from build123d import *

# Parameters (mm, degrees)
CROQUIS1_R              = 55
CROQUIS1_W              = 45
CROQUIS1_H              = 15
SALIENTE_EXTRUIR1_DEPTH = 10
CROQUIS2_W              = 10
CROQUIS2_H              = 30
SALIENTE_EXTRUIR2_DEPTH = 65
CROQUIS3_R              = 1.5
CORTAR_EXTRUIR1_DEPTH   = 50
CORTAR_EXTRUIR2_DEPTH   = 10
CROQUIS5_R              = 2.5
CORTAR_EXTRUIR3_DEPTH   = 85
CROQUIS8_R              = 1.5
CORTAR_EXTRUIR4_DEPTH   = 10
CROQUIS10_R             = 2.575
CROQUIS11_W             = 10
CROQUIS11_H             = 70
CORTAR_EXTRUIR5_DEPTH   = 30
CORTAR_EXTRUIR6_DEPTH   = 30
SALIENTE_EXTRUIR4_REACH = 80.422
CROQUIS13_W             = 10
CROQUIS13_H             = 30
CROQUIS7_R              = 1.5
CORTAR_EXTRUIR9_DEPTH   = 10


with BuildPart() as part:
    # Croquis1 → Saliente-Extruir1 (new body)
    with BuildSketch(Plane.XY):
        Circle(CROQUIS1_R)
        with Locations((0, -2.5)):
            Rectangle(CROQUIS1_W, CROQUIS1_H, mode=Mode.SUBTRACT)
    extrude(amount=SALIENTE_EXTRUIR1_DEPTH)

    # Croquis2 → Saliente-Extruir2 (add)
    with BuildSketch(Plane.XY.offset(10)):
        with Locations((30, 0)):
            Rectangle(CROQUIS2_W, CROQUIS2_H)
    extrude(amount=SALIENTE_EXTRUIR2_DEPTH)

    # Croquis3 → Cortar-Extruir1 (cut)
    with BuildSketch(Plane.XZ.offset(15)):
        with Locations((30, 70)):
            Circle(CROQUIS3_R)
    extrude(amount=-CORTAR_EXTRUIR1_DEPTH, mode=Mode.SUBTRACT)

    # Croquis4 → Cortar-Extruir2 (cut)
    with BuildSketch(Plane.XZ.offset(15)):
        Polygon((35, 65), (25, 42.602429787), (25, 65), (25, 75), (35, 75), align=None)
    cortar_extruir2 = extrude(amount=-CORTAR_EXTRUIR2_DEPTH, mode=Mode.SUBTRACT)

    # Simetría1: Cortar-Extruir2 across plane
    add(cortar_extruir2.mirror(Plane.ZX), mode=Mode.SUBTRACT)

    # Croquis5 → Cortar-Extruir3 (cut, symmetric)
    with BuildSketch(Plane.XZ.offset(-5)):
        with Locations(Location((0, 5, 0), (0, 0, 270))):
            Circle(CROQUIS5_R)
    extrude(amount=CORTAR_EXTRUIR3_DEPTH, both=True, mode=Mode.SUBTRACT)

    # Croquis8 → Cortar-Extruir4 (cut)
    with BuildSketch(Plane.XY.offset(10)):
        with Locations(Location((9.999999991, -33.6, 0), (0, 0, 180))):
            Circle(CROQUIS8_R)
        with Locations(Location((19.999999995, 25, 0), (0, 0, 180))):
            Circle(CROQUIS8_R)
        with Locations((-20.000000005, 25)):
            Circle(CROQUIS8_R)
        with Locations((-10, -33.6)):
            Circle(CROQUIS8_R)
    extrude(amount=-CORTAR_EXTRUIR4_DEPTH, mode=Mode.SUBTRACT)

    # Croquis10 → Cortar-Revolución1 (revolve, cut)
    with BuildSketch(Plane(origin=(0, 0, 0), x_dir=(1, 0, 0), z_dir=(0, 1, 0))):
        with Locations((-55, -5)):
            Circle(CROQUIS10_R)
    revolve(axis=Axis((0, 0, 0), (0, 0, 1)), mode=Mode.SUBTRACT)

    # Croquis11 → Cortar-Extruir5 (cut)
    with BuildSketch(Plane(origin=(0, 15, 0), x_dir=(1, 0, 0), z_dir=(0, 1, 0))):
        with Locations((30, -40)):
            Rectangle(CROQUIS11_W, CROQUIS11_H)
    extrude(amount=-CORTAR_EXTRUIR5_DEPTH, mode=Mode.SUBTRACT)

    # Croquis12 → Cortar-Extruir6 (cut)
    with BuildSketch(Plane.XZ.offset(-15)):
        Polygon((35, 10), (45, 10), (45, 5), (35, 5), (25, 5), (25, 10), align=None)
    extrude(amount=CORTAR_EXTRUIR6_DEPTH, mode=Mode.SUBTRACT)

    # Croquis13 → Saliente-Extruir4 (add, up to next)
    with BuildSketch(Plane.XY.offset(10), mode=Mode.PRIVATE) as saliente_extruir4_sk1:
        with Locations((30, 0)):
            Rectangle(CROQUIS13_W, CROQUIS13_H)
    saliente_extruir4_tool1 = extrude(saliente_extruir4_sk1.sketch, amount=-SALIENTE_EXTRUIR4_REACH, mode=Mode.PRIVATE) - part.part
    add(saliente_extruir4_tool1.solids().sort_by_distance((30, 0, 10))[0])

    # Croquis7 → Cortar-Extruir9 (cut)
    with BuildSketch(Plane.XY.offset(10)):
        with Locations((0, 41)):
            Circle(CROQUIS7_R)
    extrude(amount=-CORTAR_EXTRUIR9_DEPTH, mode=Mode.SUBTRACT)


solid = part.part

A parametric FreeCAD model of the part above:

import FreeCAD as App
import Part
import Sketcher
from FreeCAD import Vector
Q = App.Units.Quantity

doc = App.newDocument("Part")
body = doc.addObject("PartDesign::Body", "Body")

# Sketch on XY plane
sketch1 = body.newObject("Sketcher::SketchObject", "Sketch")
sketch1.AttachmentSupport = (doc.getObject("XY_Plane"), [""])
sketch1.MapMode = "FlatFace"
sketch1.addGeometry([
    Part.Circle(Vector(0, 0, 0), Vector(0, 0, 1), 55),  # 0
    Part.LineSegment(Vector(22.5, -10, 0), Vector(-22.5, -10, 0)),  # 1
    Part.LineSegment(Vector(-22.5, -10, 0), Vector(-22.5, 5, 0)),  # 2
    Part.LineSegment(Vector(-22.5, 5, 0), Vector(22.5, 5, 0)),  # 3
    Part.LineSegment(Vector(22.5, 5, 0), Vector(22.5, -10, 0)),  # 4
], False)
sketch1.addConstraint([
    Sketcher.Constraint("Coincident", 1, 2, 2, 1),
    Sketcher.Constraint("Coincident", 2, 2, 3, 1),
    Sketcher.Constraint("Coincident", 3, 2, 4, 1),
    Sketcher.Constraint("Coincident", 4, 2, 1, 1),
    Sketcher.Constraint("Horizontal", 1),
    Sketcher.Constraint("Vertical", 2),
    Sketcher.Constraint("Horizontal", 3),
    Sketcher.Constraint("Vertical", 4),
    Sketcher.Constraint("Coincident", 0, 3, -1, 1),
    Sketcher.Constraint("Diameter", 0, Q("110 mm")),
    Sketcher.Constraint("DistanceX", 1, 2, 1, 1, Q("45 mm")),
    Sketcher.Constraint("DistanceY", 2, 1, 2, 2, Q("15 mm")),
    Sketcher.Constraint("DistanceY", 1, 2, -1, 1, Q("10 mm")),
    Sketcher.Constraint("DistanceX", 1, 2, -1, 1, Q("22.5 mm")),
])
pad1 = body.newObject("PartDesign::Pad", "Pad")
pad1.Profile = sketch1
pad1.Length = 10

# Sketch on XY plane
sketch2 = body.newObject("Sketcher::SketchObject", "Sketch001")
sketch2.AttachmentSupport = (doc.getObject("XY_Plane"), [""])
sketch2.MapMode = "FlatFace"
sketch2.AttachmentOffset = App.Placement(Vector(0, 0, 10), App.Rotation())
sketch2.addGeometry([
    Part.LineSegment(Vector(25, 15, 0), Vector(25, -15, 0)),
    Part.LineSegment(Vector(25, -15, 0), Vector(35, -15, 0)),
    Part.LineSegment(Vector(35, -15, 0), Vector(35, 15, 0)),
    Part.LineSegment(Vector(35, 15, 0), Vector(25, 15, 0)),
], False)
sketch2.addConstraint([
    Sketcher.Constraint("Coincident", 0, 2, 1, 1),
    Sketcher.Constraint("Coincident", 1, 2, 2, 1),
    Sketcher.Constraint("Coincident", 2, 2, 3, 1),
    Sketcher.Constraint("Coincident", 3, 2, 0, 1),
    Sketcher.Constraint("Vertical", 0),
    Sketcher.Constraint("Horizontal", 1),
    Sketcher.Constraint("Vertical", 2),
    Sketcher.Constraint("Horizontal", 3),
    Sketcher.Constraint("DistanceX", 1, 1, 1, 2, Q("10 mm")),
    Sketcher.Constraint("DistanceY", 0, 2, 0, 1, Q("30 mm")),
    Sketcher.Constraint("DistanceX", -1, 1, 0, 2, Q("25 mm")),
    Sketcher.Constraint("DistanceY", 0, 2, -1, 1, Q("15 mm")),
])
pad2 = body.newObject("PartDesign::Pad", "Pad001")
pad2.Profile = sketch2
pad2.Length = 65

# Sketch on XZ plane
sketch3 = body.newObject("Sketcher::SketchObject", "Sketch002")
sketch3.AttachmentSupport = (doc.getObject("XZ_Plane"), [""])
sketch3.MapMode = "FlatFace"
sketch3.AttachmentOffset = App.Placement(Vector(0, 0, 15), App.Rotation())
sketch3.addGeometry(Part.Circle(Vector(30, 70, 0), Vector(0, 0, 1), 1.5), False)
sketch3.addConstraint([
    Sketcher.Constraint("Diameter", 0, Q("3 mm")),
    Sketcher.Constraint("DistanceX", -1, 1, 0, 3, Q("30 mm")),
    Sketcher.Constraint("DistanceY", -1, 1, 0, 3, Q("70 mm")),
])
pocket1 = body.newObject("PartDesign::Pocket", "Pocket")
pocket1.Profile = sketch3
pocket1.Length = 50

# Sketch on XZ plane
sketch4 = body.newObject("Sketcher::SketchObject", "Sketch003")
sketch4.AttachmentSupport = (doc.getObject("XZ_Plane"), [""])
sketch4.MapMode = "FlatFace"
sketch4.AttachmentOffset = App.Placement(Vector(0, 0, 15), App.Rotation())
sketch4.addGeometry([
    Part.LineSegment(Vector(25, 42.60243, 0), Vector(35, 65, 0)),
    Part.LineSegment(Vector(35, 65, 0), Vector(35, 75, 0)),
    Part.LineSegment(Vector(35, 75, 0), Vector(25, 75, 0)),
    Part.LineSegment(Vector(25, 75, 0), Vector(25, 42.60243, 0)),
], False)
sketch4.addConstraint([
    Sketcher.Constraint("Coincident", 0, 2, 1, 1),
    Sketcher.Constraint("Coincident", 1, 2, 2, 1),
    Sketcher.Constraint("Coincident", 2, 2, 3, 1),
    Sketcher.Constraint("Coincident", 3, 2, 0, 1),
    Sketcher.Constraint("Vertical", 1),
    Sketcher.Constraint("Horizontal", 2),
    Sketcher.Constraint("Vertical", 3),
    Sketcher.Constraint("Equal", 2, 1),
    Sketcher.Constraint("DistanceX", 2, 2, 2, 1, Q("10 mm")),
    Sketcher.Constraint("DistanceX", -1, 1, 0, 2, Q("35 mm")),
    Sketcher.Constraint("DistanceY", -1, 1, 0, 2, Q("65 mm")),
    Sketcher.Constraint("DistanceY", 3, 2, 3, 1, Q("32.39757 mm")),
])
pocket2 = body.newObject("PartDesign::Pocket", "Pocket001")
pocket2.Profile = sketch4
pocket2.Length = 10
doc.recompute()

mirrored = body.newObject("PartDesign::Mirrored", "Mirrored")
mirrored.Originals = [pocket2]
mirrored.MirrorPlane = (doc.getObject("XZ_Plane"), [""])
body.Tip = mirrored

# Sketch on XZ plane
sketch5 = body.newObject("Sketcher::SketchObject", "Sketch004")
sketch5.AttachmentSupport = (doc.getObject("XZ_Plane"), [""])
sketch5.MapMode = "FlatFace"
sketch5.AttachmentOffset = App.Placement(Vector(0, 0, -5), App.Rotation())
sketch5.addGeometry(Part.Circle(Vector(0, 5, 0), Vector(0, 0, 1), 2.5), False)
sketch5.addConstraint([
    Sketcher.Constraint("PointOnObject", 0, 3, -2),
    Sketcher.Constraint("Diameter", 0, Q("5 mm")),
    Sketcher.Constraint("DistanceY", -1, 1, 0, 3, Q("5 mm")),
])
pocket3 = body.newObject("PartDesign::Pocket", "Pocket002")
pocket3.Profile = sketch5
pocket3.Length = 170
pocket3.Midplane = True

# Sketch on XY plane
sketch6 = body.newObject("Sketcher::SketchObject", "Sketch005")
sketch6.AttachmentSupport = (doc.getObject("XY_Plane"), [""])
sketch6.MapMode = "FlatFace"
sketch6.AttachmentOffset = App.Placement(Vector(0, 0, 10), App.Rotation())
sketch6.addGeometry([
    Part.Circle(Vector(10, -33.6, 0), Vector(0, 0, 1), 1.5),
    Part.Circle(Vector(20, 25, 0), Vector(0, 0, 1), 1.5),
    Part.Circle(Vector(-20, 25, 0), Vector(0, 0, 1), 1.5),
    Part.Circle(Vector(-10, -33.6, 0), Vector(0, 0, 1), 1.5),
], False)
sketch6.addConstraint([
    Sketcher.Constraint("Equal", 0, 1),
    Sketcher.Constraint("Equal", 1, 2),
    Sketcher.Constraint("Equal", 2, 3),
    Sketcher.Constraint("Symmetric", 1, 3, 2, 3, -2),
    Sketcher.Constraint("Symmetric", 0, 3, 3, 3, -2),
    Sketcher.Constraint("Diameter", 0, Q("3 mm")),
    Sketcher.Constraint("DistanceX", -1, 1, 0, 3, Q("10 mm")),
    Sketcher.Constraint("DistanceX", -1, 1, 1, 3, Q("20 mm")),
    Sketcher.Constraint("DistanceY", -1, 1, 1, 3, Q("25 mm")),
    Sketcher.Constraint("DistanceY", 0, 3, -1, 1, Q("33.6 mm")),
])
pocket4 = body.newObject("PartDesign::Pocket", "Pocket003")
pocket4.Profile = sketch6
pocket4.Length = 10

# Sketch on XZ plane
sketch7 = body.newObject("Sketcher::SketchObject", "Sketch006")
sketch7.AttachmentSupport = (doc.getObject("XZ_Plane"), [""])
sketch7.MapMode = "FlatFace"
sketch7.addGeometry(Part.Circle(Vector(-55, 5, 0), Vector(0, 0, 1), 2.575), False)
sketch7.addConstraint([
    Sketcher.Constraint("Diameter", 0, Q("5.15 mm")),
    Sketcher.Constraint("DistanceX", 0, 3, -1, 1, Q("55 mm")),
    Sketcher.Constraint("DistanceY", -1, 1, 0, 3, Q("5 mm")),
])
groove = body.newObject("PartDesign::Groove", "Groove")
groove.Profile = sketch7
groove.ReferenceAxis = (sketch7, ["V_Axis"])
groove.Angle = 360

# Sketch on XZ plane
sketch8 = body.newObject("Sketcher::SketchObject", "Sketch007")
sketch8.AttachmentSupport = (doc.getObject("XZ_Plane"), [""])
sketch8.MapMode = "FlatFace"
sketch8.AttachmentOffset = App.Placement(Vector(0, 0, -15), App.Rotation())
sketch8.addGeometry([
    Part.LineSegment(Vector(25, 5, 0), Vector(25, 75, 0)),
    Part.LineSegment(Vector(25, 75, 0), Vector(35, 75, 0)),
    Part.LineSegment(Vector(35, 75, 0), Vector(35, 5, 0)),
    Part.LineSegment(Vector(35, 5, 0), Vector(25, 5, 0)),
], False)
sketch8.addConstraint([
    Sketcher.Constraint("Coincident", 0, 2, 1, 1),
    Sketcher.Constraint("Coincident", 1, 2, 2, 1),
    Sketcher.Constraint("Coincident", 2, 2, 3, 1),
    Sketcher.Constraint("Coincident", 3, 2, 0, 1),
    Sketcher.Constraint("Vertical", 0),
    Sketcher.Constraint("Horizontal", 1),
    Sketcher.Constraint("Vertical", 2),
    Sketcher.Constraint("Horizontal", 3),
    Sketcher.Constraint("DistanceX", 1, 1, 1, 2, Q("10 mm")),
    Sketcher.Constraint("DistanceY", 0, 1, 0, 2, Q("70 mm")),
    Sketcher.Constraint("DistanceX", -1, 1, 0, 2, Q("25 mm")),
    Sketcher.Constraint("DistanceY", -1, 1, 0, 2, Q("75 mm")),
])
pocket5 = body.newObject("PartDesign::Pocket", "Pocket004")
pocket5.Profile = sketch8
pocket5.Length = 30
pocket5.Reversed = True

# Sketch on XZ plane
sketch9 = body.newObject("Sketcher::SketchObject", "Sketch008")
sketch9.AttachmentSupport = (doc.getObject("XZ_Plane"), [""])
sketch9.MapMode = "FlatFace"
sketch9.AttachmentOffset = App.Placement(Vector(0, 0, -15), App.Rotation())
sketch9.addGeometry([
    Part.LineSegment(Vector(45, 10, 0), Vector(25, 10, 0)),
    Part.LineSegment(Vector(25, 10, 0), Vector(25, 5, 0)),
    Part.LineSegment(Vector(25, 5, 0), Vector(45, 5, 0)),
    Part.LineSegment(Vector(45, 5, 0), Vector(45, 10, 0)),
], False)
sketch9.addConstraint([
    Sketcher.Constraint("Coincident", 0, 2, 1, 1),
    Sketcher.Constraint("Coincident", 1, 2, 2, 1),
    Sketcher.Constraint("Coincident", 2, 2, 3, 1),
    Sketcher.Constraint("Coincident", 3, 2, 0, 1),
    Sketcher.Constraint("Horizontal", 0),
    Sketcher.Constraint("Vertical", 1),
    Sketcher.Constraint("Horizontal", 2),
    Sketcher.Constraint("Vertical", 3),
    Sketcher.Constraint("DistanceX", 0, 2, 0, 1, Q("20 mm")),
    Sketcher.Constraint("DistanceY", 1, 2, 1, 1, Q("5 mm")),
    Sketcher.Constraint("DistanceX", -1, 1, 0, 2, Q("25 mm")),
    Sketcher.Constraint("DistanceY", -1, 1, 0, 2, Q("10 mm")),
])
pocket6 = body.newObject("PartDesign::Pocket", "Pocket005")
pocket6.Profile = sketch9
pocket6.Length = 30
pocket6.Reversed = True

# Sketch on XY plane
sketch10 = body.newObject("Sketcher::SketchObject", "Sketch009")
sketch10.AttachmentSupport = (doc.getObject("XY_Plane"), [""])
sketch10.MapMode = "FlatFace"
sketch10.AttachmentOffset = App.Placement(Vector(0, 0, 10), App.Rotation())
sketch10.addGeometry([
    Part.LineSegment(Vector(25, 15, 0), Vector(25, -15, 0)),
    Part.LineSegment(Vector(25, -15, 0), Vector(35, -15, 0)),
    Part.LineSegment(Vector(35, -15, 0), Vector(35, 15, 0)),
    Part.LineSegment(Vector(35, 15, 0), Vector(25, 15, 0)),
], False)
sketch10.addConstraint([
    Sketcher.Constraint("Coincident", 0, 2, 1, 1),
    Sketcher.Constraint("Coincident", 1, 2, 2, 1),
    Sketcher.Constraint("Coincident", 2, 2, 3, 1),
    Sketcher.Constraint("Coincident", 3, 2, 0, 1),
    Sketcher.Constraint("Vertical", 0),
    Sketcher.Constraint("Horizontal", 1),
    Sketcher.Constraint("Vertical", 2),
    Sketcher.Constraint("Horizontal", 3),
    Sketcher.Constraint("DistanceX", 1, 1, 1, 2, Q("10 mm")),
    Sketcher.Constraint("DistanceY", 0, 2, 0, 1, Q("30 mm")),
    Sketcher.Constraint("DistanceX", -1, 1, 0, 2, Q("25 mm")),
    Sketcher.Constraint("DistanceY", 0, 2, -1, 1, Q("15 mm")),
])
pad3 = body.newObject("PartDesign::Pad", "Pad002")
pad3.Profile = sketch10
pad3.Type = "UpToFirst"
pad3.Reversed = True

# Sketch on XY plane
sketch11 = body.newObject("Sketcher::SketchObject", "Sketch010")
sketch11.AttachmentSupport = (doc.getObject("XY_Plane"), [""])
sketch11.MapMode = "FlatFace"
sketch11.AttachmentOffset = App.Placement(Vector(0, 0, 10), App.Rotation())
sketch11.addGeometry(Part.Circle(Vector(0, 41, 0), Vector(0, 0, 1), 1.5), False)
sketch11.addConstraint([
    Sketcher.Constraint("PointOnObject", 0, 3, -2),
    Sketcher.Constraint("Diameter", 0, Q("3 mm")),
    Sketcher.Constraint("DistanceY", -1, 1, 0, 3, Q("41 mm")),
])
pocket7 = body.newObject("PartDesign::Pocket", "Pocket006")
pocket7.Profile = sketch11
pocket7.Length = 10

doc.recompute()
